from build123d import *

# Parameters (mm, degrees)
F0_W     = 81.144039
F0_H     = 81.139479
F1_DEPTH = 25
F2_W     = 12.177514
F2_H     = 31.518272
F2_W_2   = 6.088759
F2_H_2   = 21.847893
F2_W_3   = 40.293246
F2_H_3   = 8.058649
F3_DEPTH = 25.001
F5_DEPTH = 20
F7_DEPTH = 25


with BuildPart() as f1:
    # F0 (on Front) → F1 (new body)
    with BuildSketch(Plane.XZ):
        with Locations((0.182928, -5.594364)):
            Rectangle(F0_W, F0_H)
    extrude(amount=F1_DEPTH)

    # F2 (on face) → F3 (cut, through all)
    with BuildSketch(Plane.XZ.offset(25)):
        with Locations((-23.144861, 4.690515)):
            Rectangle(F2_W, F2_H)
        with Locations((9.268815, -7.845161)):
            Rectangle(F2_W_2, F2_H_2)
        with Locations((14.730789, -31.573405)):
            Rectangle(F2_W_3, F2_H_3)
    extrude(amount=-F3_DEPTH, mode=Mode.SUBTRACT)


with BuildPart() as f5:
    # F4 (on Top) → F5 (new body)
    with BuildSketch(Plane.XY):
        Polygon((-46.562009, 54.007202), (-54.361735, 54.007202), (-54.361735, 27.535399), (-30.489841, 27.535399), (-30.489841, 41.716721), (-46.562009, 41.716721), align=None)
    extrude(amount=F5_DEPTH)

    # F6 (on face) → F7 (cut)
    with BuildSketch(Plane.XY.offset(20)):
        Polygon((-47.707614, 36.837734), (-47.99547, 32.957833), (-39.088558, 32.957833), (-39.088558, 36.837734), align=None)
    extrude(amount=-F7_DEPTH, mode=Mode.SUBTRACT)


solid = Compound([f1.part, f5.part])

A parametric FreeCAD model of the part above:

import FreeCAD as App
import Part
import Sketcher
from FreeCAD import Vector

doc = App.newDocument("Part")
body = doc.addObject("PartDesign::Body", "Body")

# Sketch on XZ plane
sketch1 = body.newObject("Sketcher::SketchObject", "Sketch")
sketch1.AttachmentSupport = (doc.getObject("XZ_Plane"), [""])
sketch1.MapMode = "FlatFace"
sketch1.addGeometry([
    Part.LineSegment(Vector(-40, 35, 0), Vector(-40, -46, 0)),
    Part.LineSegment(Vector(-40, -46, 0), Vector(41, -46, 0)),
    Part.LineSegment(Vector(41, -46, 0), Vector(41, 35, 0)),
    Part.LineSegment(Vector(41, 35, 0), Vector(-40, 35, 0)),
], False)
sketch1.addConstraint([
    Sketcher.Constraint("Coincident", 0, 2, 1, 1),
    Sketcher.Constraint("Coincident", 1, 2, 2, 1),
    Sketcher.Constraint("Coincident", 2, 2, 3, 1),
    Sketcher.Constraint("Coincident", 3, 2, 0, 1),
    Sketcher.Constraint("Vertical", 0),
    Sketcher.Constraint("Horizontal", 1),
    Sketcher.Constraint("Vertical", 2),
    Sketcher.Constraint("Horizontal", 3),
    Sketcher.Constraint("DistanceX", 1, 1, 1, 2, 81.144039),
    Sketcher.Constraint("DistanceY", 0, 2, 0, 1, 81.139479),
    Sketcher.Constraint("DistanceX", 0, 2, -1, 1, 40.389091),
    Sketcher.Constraint("DistanceY", 0, 2, -1, 1, 46.164104),
])
pad1 = body.newObject("PartDesign::Pad", "Pad")
pad1.Profile = sketch1
pad1.Length = 25

# Sketch on XZ plane
sketch2 = body.newObject("Sketcher::SketchObject", "Sketch001")
sketch2.AttachmentSupport = (doc.getObject("XZ_Plane"), [""])
sketch2.MapMode = "FlatFace"
sketch2.AttachmentOffset = App.Placement(Vector(0, 0, 25), App.Rotation())
sketch2.addGeometry([
    Part.LineSegment(Vector(-29, 20, 0), Vector(-29, -11, 0)),  # 0
    Part.LineSegment(Vector(-29, -11, 0), Vector(-17, -11, 0)),  # 1
    Part.LineSegment(Vector(-17, -11, 0), Vector(-17, 20, 0)),  # 2
    Part.LineSegment(Vector(-17, 20, 0), Vector(-29, 20, 0)),  # 3
    Part.LineSegment(Vector(6, 3, 0), Vector(6, -19, 0)),  # 4
    Part.LineSegment(Vector(6, -19, 0), Vector(12, -19, 0)),  # 5
    Part.LineSegment(Vector(12, -19, 0), Vector(12, 3, 0)),  # 6
    Part.LineSegment(Vector(12, 3, 0), Vector(6, 3, 0)),  # 7
    Part.LineSegment(Vector(-5, -28, 0), Vector(-5, -36, 0)),  # 8
    Part.LineSegment(Vector(-5, -36, 0), Vector(35, -36, 0)),  # 9
    Part.LineSegment(Vector(35, -36, 0), Vector(35, -28, 0)),  # 10
    Part.LineSegment(Vector(35, -28, 0), Vector(-5, -28, 0)),  # 11
], False)
sketch2.addConstraint([
    Sketcher.Constraint("Coincident", 0, 2, 1, 1),
    Sketcher.Constraint("Coincident", 1, 2, 2, 1),
    Sketcher.Constraint("Coincident", 2, 2, 3, 1),
    Sketcher.Constraint("Coincident", 3, 2, 0, 1),
    Sketcher.Constraint("Coincident", 4, 2, 5, 1),
    Sketcher.Constraint("Coincident", 5, 2, 6, 1),
    Sketcher.Constraint("Coincident", 6, 2, 7, 1),
    Sketcher.Constraint("Coincident", 7, 2, 4, 1),
    Sketcher.Constraint("Coincident", 8, 2, 9, 1),
    Sketcher.Constraint("Coincident", 9, 2, 10, 1),
    Sketcher.Constraint("Coincident", 10, 2, 11, 1),
    Sketcher.Constraint("Coincident", 11, 2, 8, 1),
    Sketcher.Constraint("Vertical", 0),
    Sketcher.Constraint("Horizontal", 1),
    Sketcher.Constraint("Vertical", 2),
    Sketcher.Constraint("Horizontal", 3),
    Sketcher.Constraint("Vertical", 4),
    Sketcher.Constraint("Horizontal", 5),
    Sketcher.Constraint("Vertical", 6),
    Sketcher.Constraint("Horizontal", 7),
    Sketcher.Constraint("Vertical", 8),
    Sketcher.Constraint("Horizontal", 9),
    Sketcher.Constraint("Vertical", 10),
    Sketcher.Constraint("Horizontal", 11),
    Sketcher.Constraint("DistanceX", 5, 1, 5, 2, 6.088759),
    Sketcher.Constraint("DistanceY", 0, 2, 0, 1, 31.518272),
    Sketcher.Constraint("DistanceY", 8, 2, 8, 1, 8.058649),
    Sketcher.Constraint("DistanceX", 1, 2, 5, 2, 29.369298),
    Sketcher.Constraint("DistanceX", 1, 1, 1, 2, 12.177514),
    Sketcher.Constraint("DistanceX", 9, 1, 9, 2, 40.293246),
    Sketcher.Constraint("DistanceY", 4, 2, 4, 1, 21.847893),
    Sketcher.Constraint("DistanceX", 0, 2, -1, 1, 29.233618),
    Sketcher.Constraint("DistanceY", 0, 2, -1, 1, 11.068621),
    Sketcher.Constraint("DistanceY", 8, 2, -1, 1, 35.60273),
    Sketcher.Constraint("DistanceY", 4, 2, 2, 2, 39.218758),
    Sketcher.Constraint("DistanceX", 8, 2, 4, 2, 11.64027),
])
pocket1 = body.newObject("PartDesign::Pocket", "Pocket")
pocket1.Profile = sketch2
pocket1.Type = "ThroughAll"
body2 = doc.addObject("PartDesign::Body", "Body001")

# Sketch on XY plane
sketch3 = body2.newObject("Sketcher::SketchObject", "Sketch002")
sketch3.AttachmentSupport = (doc.getObject("XY_Plane001"), [""])
sketch3.MapMode = "FlatFace"
sketch3.addGeometry([
    Part.LineSegment(Vector(-47, 54, 0), Vector(-54, 54, 0)),  # 0
    Part.LineSegment(Vector(-54, 54, 0), Vector(-54, 28, 0)),  # 1
    Part.LineSegment(Vector(-54, 28, 0), Vector(-30, 28, 0)),  # 2
    Part.LineSegment(Vector(-30, 28, 0), Vector(-30, 42, 0)),  # 3
    Part.LineSegment(Vector(-30, 42, 0), Vector(-47, 42, 0)),  # 4
    Part.LineSegment(Vector(-47, 42, 0), Vector(-47, 54, 0)),  # 5
], False)
sketch3.addConstraint([
    Sketcher.Constraint("Coincident", 0, 2, 1, 1),
    Sketcher.Constraint("Coincident", 1, 2, 2, 1),
    Sketcher.Constraint("Coincident", 2, 2, 3, 1),
    Sketcher.Constraint("Coincident", 3, 2, 4, 1),
    Sketcher.Constraint("Coincident", 4, 2, 5, 1),
    Sketcher.Constraint("Coincident", 5, 2, 0, 1),
    Sketcher.Constraint("Horizontal", 0),
    Sketcher.Constraint("Vertical", 1),
    Sketcher.Constraint("Horizontal", 2),
    Sketcher.Constraint("Vertical", 3),
    Sketcher.Constraint("Horizontal", 4),
    Sketcher.Constraint("Vertical", 5),
    Sketcher.Constraint("DistanceX", 4, 2, 4, 1, 16.072168),
    Sketcher.Constraint("DistanceY", 3, 1, 3, 2, 14.181322),
    Sketcher.Constraint("DistanceY", 5, 1, 5, 2, 12.290481),
    Sketcher.Constraint("DistanceY", -1, 1, 1, 2, 27.535399),
    Sketcher.Constraint("DistanceX", 0, 2, 0, 1, 7.799726),
    Sketcher.Constraint("DistanceX", 2, 2, -1, 1, 30.489841),
])
pad2 = body2.newObject("PartDesign::Pad", "Pad001")
pad2.Profile = sketch3
pad2.Length = 20

# Sketch on XY plane
sketch4 = body2.newObject("Sketcher::SketchObject", "Sketch003")
sketch4.AttachmentSupport = (doc.getObject("XY_Plane001"), [""])
sketch4.MapMode = "FlatFace"
sketch4.AttachmentOffset = App.Placement(Vector(0, 0, 20), App.Rotation())
sketch4.addGeometry([
    Part.LineSegment(Vector(-47.7, 36.8, 0), Vector(-48, 33, 0)),
    Part.LineSegment(Vector(-48, 33, 0), Vector(-39.1, 33, 0)),
    Part.LineSegment(Vector(-39.1, 33, 0), Vector(-39.1, 36.8, 0)),
    Part.LineSegment(Vector(-39.1, 36.8, 0), Vector(-47.7, 36.8, 0)),
], False)
sketch4.addConstraint([
    Sketcher.Constraint("Coincident", 0, 2, 1, 1),
    Sketcher.Constraint("Coincident", 1, 2, 2, 1),
    Sketcher.Constraint("Coincident", 2, 2, 3, 1),
    Sketcher.Constraint("Coincident", 3, 2, 0, 1),
    Sketcher.Constraint("Horizontal", 1),
    Sketcher.Constraint("Vertical", 2),
    Sketcher.Constraint("Horizontal", 3),
    Sketcher.Constraint("DistanceY", 2, 1, 2, 2, 3.879901),
    Sketcher.Constraint("DistanceX", 1, 1, 1, 2, 8.906912),
    Sketcher.Constraint("DistanceX", 3, 2, 3, 1, 8.619056),
    Sketcher.Constraint("DistanceX", 0, 2, -1, 1, 47.99547),
    Sketcher.Constraint("DistanceY", -1, 1, 0, 2, 32.957833),
])
pocket2 = body2.newObject("PartDesign::Pocket", "Pocket001")
pocket2.Profile = sketch4
pocket2.Length = 25

doc.recompute()
